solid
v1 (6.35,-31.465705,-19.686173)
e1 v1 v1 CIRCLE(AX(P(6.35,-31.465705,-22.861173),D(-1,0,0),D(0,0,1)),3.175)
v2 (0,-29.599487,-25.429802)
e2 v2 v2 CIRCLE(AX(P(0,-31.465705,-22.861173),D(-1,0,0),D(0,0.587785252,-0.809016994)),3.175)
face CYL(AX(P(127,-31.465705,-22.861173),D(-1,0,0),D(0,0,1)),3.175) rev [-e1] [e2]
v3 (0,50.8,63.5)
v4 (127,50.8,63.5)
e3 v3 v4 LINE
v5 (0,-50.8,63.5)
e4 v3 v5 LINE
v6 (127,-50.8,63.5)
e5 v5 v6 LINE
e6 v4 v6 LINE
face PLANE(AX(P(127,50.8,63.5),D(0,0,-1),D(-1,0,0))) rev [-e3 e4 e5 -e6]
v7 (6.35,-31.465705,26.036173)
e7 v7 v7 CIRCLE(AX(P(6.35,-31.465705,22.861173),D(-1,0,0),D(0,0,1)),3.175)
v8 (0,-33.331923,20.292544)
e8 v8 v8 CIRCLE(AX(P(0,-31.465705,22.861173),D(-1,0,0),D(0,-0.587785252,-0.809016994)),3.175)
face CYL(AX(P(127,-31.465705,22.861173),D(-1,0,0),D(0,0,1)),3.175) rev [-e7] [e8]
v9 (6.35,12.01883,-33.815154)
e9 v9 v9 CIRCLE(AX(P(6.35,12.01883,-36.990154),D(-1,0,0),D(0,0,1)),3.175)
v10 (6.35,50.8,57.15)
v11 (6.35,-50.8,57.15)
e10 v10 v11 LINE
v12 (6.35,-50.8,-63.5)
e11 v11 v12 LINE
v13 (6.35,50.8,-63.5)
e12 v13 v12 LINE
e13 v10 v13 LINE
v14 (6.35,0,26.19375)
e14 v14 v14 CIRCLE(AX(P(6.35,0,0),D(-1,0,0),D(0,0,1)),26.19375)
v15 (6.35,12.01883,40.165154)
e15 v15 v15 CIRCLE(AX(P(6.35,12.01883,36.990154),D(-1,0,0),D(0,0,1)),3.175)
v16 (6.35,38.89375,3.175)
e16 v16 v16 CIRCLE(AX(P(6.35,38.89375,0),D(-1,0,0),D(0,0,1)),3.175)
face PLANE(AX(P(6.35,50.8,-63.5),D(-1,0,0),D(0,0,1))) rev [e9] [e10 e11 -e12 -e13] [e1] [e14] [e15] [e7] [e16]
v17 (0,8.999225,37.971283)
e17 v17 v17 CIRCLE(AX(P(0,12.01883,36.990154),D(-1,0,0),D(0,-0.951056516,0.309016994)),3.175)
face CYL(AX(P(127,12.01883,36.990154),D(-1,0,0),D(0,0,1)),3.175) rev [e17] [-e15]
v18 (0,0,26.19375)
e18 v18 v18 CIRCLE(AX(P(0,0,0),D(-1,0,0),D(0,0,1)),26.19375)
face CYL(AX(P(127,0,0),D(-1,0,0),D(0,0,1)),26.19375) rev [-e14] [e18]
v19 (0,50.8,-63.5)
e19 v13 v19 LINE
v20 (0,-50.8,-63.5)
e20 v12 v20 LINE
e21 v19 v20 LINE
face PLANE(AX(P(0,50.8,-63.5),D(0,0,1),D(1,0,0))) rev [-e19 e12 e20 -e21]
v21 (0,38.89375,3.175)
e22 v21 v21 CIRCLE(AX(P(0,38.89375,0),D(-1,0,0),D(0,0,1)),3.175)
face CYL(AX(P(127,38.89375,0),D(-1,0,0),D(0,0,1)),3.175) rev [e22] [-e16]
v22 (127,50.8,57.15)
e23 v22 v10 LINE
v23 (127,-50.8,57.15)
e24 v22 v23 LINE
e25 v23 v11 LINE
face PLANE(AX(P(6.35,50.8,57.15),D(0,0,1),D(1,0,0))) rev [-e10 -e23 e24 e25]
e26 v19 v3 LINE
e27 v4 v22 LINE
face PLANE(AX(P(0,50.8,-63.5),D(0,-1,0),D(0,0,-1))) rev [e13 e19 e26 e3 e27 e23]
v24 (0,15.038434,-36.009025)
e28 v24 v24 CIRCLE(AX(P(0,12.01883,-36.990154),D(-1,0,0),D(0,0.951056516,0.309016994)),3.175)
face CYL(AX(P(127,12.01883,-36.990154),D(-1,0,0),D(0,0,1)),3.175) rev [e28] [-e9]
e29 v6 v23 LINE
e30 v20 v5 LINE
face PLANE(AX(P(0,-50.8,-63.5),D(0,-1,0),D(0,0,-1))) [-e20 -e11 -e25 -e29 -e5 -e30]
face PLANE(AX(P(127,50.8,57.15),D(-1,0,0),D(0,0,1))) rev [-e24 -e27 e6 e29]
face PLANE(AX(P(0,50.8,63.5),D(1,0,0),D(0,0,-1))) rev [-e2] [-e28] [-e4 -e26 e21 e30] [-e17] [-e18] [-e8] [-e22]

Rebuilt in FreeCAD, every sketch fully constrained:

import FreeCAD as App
import Part
import Sketcher
Q = App.Units.Quantity


def add_polygon(sketch, points):
    """Adds a closed chain of lines whose ends are joined by coincident constraints."""
    first, n = sketch.GeometryCount, len(points)
    for a, b in zip(points, points[1:] + points[:1]):
        sketch.addGeometry(Part.LineSegment(App.Vector(*a, 0), App.Vector(*b, 0)), False)
    for i in range(n):
        sketch.addConstraint(Sketcher.Constraint("Coincident", first + i, 2, first + (i + 1) % n, 1))

doc = App.newDocument("Part")
body = doc.addObject("PartDesign::Body", "Body")

# Sketch on XZ plane
sketch1 = doc.addObject("Sketcher::SketchObject", "Sketch")
body.addObject(sketch1)
sketch1.AttachmentSupport = (doc.XZ_Plane, [""])
sketch1.MapMode = "FlatFace"
add_polygon(sketch1, [(6, -64), (0, -64), (0, 64), (127, 64), (127, 57), (6, 57)])  # lines 0-5
sketch1.addConstraint([
    Sketcher.Constraint("Horizontal", 0),
    Sketcher.Constraint("Vertical", 1),
    Sketcher.Constraint("Horizontal", 2),
    Sketcher.Constraint("Vertical", 3),
    Sketcher.Constraint("Horizontal", 4),
    Sketcher.Constraint("Vertical", 5),
    Sketcher.Constraint("Symmetric", 0, 2, 1, 2, -1, 1),
    Sketcher.Constraint("Equal", 2, 1),
    Sketcher.Constraint("Equal", 0, 3),
    Sketcher.Constraint("DistanceX", 2, 1, 2, 2, Q("5 in")),
    Sketcher.Constraint("DistanceX", 0, 2, 0, 1, Q("0.25 in")),
])
pad1 = doc.addObject("PartDesign::Pad", "Pad")
body.addObject(pad1)
pad1.Profile = sketch1
pad1.Length = Q("4 in")
pad1.Midplane = True

# Sketch on YZ plane
sketch2 = doc.addObject("Sketcher::SketchObject", "Sketch001")
body.addObject(sketch2)
sketch2.AttachmentSupport = (doc.YZ_Plane, [""])
sketch2.MapMode = "FlatFace"
sketch2.addGeometry(Part.Circle(App.Vector(0, 0, 0), App.Vector(0, 0, 1), 26), False)
sketch2.addConstraint([
    Sketcher.Constraint("Coincident", 0, 3, -1, 1),
    Sketcher.Constraint("Diameter", 0, Q("2.0625 in")),
])
pocket1 = doc.addObject("PartDesign::Pocket", "Pocket")
body.addObject(pocket1)
pocket1.Profile = sketch2
pocket1.Type = "ThroughAll"
pocket1.Reversed = True

# Sketch on YZ plane
sketch3 = doc.addObject("Sketcher::SketchObject", "Sketch002")
body.addObject(sketch3)
sketch3.AttachmentSupport = (doc.YZ_Plane, [""])
sketch3.MapMode = "FlatFace"
sketch3.addGeometry(Part.Circle(App.Vector(38.9, 0, 0), App.Vector(0, 0, 1), 3.2), False)
sketch3.addConstraint([
    Sketcher.Constraint("PointOnObject", 0, 3, -1),
    Sketcher.Constraint("Diameter", 0, Q("0.25 in")),
    Sketcher.Constraint("DistanceX", -1, 1, 0, 3, Q("1.53125 in")),
])
pocket2 = doc.addObject("PartDesign::Pocket", "Pocket001")
body.addObject(pocket2)
pocket2.Profile = sketch3
pocket2.Type = "ThroughAll"
pocket2.Reversed = True
doc.recompute()

polarpattern = doc.addObject("PartDesign::PolarPattern", "PolarPattern")
body.addObject(polarpattern)
polarpattern.Originals = [pocket2]
polarpattern.Axis = (doc.X_Axis, [""])
polarpattern.Angle = 360
polarpattern.Occurrences = 5
body.Tip = polarpattern

doc.recompute()
